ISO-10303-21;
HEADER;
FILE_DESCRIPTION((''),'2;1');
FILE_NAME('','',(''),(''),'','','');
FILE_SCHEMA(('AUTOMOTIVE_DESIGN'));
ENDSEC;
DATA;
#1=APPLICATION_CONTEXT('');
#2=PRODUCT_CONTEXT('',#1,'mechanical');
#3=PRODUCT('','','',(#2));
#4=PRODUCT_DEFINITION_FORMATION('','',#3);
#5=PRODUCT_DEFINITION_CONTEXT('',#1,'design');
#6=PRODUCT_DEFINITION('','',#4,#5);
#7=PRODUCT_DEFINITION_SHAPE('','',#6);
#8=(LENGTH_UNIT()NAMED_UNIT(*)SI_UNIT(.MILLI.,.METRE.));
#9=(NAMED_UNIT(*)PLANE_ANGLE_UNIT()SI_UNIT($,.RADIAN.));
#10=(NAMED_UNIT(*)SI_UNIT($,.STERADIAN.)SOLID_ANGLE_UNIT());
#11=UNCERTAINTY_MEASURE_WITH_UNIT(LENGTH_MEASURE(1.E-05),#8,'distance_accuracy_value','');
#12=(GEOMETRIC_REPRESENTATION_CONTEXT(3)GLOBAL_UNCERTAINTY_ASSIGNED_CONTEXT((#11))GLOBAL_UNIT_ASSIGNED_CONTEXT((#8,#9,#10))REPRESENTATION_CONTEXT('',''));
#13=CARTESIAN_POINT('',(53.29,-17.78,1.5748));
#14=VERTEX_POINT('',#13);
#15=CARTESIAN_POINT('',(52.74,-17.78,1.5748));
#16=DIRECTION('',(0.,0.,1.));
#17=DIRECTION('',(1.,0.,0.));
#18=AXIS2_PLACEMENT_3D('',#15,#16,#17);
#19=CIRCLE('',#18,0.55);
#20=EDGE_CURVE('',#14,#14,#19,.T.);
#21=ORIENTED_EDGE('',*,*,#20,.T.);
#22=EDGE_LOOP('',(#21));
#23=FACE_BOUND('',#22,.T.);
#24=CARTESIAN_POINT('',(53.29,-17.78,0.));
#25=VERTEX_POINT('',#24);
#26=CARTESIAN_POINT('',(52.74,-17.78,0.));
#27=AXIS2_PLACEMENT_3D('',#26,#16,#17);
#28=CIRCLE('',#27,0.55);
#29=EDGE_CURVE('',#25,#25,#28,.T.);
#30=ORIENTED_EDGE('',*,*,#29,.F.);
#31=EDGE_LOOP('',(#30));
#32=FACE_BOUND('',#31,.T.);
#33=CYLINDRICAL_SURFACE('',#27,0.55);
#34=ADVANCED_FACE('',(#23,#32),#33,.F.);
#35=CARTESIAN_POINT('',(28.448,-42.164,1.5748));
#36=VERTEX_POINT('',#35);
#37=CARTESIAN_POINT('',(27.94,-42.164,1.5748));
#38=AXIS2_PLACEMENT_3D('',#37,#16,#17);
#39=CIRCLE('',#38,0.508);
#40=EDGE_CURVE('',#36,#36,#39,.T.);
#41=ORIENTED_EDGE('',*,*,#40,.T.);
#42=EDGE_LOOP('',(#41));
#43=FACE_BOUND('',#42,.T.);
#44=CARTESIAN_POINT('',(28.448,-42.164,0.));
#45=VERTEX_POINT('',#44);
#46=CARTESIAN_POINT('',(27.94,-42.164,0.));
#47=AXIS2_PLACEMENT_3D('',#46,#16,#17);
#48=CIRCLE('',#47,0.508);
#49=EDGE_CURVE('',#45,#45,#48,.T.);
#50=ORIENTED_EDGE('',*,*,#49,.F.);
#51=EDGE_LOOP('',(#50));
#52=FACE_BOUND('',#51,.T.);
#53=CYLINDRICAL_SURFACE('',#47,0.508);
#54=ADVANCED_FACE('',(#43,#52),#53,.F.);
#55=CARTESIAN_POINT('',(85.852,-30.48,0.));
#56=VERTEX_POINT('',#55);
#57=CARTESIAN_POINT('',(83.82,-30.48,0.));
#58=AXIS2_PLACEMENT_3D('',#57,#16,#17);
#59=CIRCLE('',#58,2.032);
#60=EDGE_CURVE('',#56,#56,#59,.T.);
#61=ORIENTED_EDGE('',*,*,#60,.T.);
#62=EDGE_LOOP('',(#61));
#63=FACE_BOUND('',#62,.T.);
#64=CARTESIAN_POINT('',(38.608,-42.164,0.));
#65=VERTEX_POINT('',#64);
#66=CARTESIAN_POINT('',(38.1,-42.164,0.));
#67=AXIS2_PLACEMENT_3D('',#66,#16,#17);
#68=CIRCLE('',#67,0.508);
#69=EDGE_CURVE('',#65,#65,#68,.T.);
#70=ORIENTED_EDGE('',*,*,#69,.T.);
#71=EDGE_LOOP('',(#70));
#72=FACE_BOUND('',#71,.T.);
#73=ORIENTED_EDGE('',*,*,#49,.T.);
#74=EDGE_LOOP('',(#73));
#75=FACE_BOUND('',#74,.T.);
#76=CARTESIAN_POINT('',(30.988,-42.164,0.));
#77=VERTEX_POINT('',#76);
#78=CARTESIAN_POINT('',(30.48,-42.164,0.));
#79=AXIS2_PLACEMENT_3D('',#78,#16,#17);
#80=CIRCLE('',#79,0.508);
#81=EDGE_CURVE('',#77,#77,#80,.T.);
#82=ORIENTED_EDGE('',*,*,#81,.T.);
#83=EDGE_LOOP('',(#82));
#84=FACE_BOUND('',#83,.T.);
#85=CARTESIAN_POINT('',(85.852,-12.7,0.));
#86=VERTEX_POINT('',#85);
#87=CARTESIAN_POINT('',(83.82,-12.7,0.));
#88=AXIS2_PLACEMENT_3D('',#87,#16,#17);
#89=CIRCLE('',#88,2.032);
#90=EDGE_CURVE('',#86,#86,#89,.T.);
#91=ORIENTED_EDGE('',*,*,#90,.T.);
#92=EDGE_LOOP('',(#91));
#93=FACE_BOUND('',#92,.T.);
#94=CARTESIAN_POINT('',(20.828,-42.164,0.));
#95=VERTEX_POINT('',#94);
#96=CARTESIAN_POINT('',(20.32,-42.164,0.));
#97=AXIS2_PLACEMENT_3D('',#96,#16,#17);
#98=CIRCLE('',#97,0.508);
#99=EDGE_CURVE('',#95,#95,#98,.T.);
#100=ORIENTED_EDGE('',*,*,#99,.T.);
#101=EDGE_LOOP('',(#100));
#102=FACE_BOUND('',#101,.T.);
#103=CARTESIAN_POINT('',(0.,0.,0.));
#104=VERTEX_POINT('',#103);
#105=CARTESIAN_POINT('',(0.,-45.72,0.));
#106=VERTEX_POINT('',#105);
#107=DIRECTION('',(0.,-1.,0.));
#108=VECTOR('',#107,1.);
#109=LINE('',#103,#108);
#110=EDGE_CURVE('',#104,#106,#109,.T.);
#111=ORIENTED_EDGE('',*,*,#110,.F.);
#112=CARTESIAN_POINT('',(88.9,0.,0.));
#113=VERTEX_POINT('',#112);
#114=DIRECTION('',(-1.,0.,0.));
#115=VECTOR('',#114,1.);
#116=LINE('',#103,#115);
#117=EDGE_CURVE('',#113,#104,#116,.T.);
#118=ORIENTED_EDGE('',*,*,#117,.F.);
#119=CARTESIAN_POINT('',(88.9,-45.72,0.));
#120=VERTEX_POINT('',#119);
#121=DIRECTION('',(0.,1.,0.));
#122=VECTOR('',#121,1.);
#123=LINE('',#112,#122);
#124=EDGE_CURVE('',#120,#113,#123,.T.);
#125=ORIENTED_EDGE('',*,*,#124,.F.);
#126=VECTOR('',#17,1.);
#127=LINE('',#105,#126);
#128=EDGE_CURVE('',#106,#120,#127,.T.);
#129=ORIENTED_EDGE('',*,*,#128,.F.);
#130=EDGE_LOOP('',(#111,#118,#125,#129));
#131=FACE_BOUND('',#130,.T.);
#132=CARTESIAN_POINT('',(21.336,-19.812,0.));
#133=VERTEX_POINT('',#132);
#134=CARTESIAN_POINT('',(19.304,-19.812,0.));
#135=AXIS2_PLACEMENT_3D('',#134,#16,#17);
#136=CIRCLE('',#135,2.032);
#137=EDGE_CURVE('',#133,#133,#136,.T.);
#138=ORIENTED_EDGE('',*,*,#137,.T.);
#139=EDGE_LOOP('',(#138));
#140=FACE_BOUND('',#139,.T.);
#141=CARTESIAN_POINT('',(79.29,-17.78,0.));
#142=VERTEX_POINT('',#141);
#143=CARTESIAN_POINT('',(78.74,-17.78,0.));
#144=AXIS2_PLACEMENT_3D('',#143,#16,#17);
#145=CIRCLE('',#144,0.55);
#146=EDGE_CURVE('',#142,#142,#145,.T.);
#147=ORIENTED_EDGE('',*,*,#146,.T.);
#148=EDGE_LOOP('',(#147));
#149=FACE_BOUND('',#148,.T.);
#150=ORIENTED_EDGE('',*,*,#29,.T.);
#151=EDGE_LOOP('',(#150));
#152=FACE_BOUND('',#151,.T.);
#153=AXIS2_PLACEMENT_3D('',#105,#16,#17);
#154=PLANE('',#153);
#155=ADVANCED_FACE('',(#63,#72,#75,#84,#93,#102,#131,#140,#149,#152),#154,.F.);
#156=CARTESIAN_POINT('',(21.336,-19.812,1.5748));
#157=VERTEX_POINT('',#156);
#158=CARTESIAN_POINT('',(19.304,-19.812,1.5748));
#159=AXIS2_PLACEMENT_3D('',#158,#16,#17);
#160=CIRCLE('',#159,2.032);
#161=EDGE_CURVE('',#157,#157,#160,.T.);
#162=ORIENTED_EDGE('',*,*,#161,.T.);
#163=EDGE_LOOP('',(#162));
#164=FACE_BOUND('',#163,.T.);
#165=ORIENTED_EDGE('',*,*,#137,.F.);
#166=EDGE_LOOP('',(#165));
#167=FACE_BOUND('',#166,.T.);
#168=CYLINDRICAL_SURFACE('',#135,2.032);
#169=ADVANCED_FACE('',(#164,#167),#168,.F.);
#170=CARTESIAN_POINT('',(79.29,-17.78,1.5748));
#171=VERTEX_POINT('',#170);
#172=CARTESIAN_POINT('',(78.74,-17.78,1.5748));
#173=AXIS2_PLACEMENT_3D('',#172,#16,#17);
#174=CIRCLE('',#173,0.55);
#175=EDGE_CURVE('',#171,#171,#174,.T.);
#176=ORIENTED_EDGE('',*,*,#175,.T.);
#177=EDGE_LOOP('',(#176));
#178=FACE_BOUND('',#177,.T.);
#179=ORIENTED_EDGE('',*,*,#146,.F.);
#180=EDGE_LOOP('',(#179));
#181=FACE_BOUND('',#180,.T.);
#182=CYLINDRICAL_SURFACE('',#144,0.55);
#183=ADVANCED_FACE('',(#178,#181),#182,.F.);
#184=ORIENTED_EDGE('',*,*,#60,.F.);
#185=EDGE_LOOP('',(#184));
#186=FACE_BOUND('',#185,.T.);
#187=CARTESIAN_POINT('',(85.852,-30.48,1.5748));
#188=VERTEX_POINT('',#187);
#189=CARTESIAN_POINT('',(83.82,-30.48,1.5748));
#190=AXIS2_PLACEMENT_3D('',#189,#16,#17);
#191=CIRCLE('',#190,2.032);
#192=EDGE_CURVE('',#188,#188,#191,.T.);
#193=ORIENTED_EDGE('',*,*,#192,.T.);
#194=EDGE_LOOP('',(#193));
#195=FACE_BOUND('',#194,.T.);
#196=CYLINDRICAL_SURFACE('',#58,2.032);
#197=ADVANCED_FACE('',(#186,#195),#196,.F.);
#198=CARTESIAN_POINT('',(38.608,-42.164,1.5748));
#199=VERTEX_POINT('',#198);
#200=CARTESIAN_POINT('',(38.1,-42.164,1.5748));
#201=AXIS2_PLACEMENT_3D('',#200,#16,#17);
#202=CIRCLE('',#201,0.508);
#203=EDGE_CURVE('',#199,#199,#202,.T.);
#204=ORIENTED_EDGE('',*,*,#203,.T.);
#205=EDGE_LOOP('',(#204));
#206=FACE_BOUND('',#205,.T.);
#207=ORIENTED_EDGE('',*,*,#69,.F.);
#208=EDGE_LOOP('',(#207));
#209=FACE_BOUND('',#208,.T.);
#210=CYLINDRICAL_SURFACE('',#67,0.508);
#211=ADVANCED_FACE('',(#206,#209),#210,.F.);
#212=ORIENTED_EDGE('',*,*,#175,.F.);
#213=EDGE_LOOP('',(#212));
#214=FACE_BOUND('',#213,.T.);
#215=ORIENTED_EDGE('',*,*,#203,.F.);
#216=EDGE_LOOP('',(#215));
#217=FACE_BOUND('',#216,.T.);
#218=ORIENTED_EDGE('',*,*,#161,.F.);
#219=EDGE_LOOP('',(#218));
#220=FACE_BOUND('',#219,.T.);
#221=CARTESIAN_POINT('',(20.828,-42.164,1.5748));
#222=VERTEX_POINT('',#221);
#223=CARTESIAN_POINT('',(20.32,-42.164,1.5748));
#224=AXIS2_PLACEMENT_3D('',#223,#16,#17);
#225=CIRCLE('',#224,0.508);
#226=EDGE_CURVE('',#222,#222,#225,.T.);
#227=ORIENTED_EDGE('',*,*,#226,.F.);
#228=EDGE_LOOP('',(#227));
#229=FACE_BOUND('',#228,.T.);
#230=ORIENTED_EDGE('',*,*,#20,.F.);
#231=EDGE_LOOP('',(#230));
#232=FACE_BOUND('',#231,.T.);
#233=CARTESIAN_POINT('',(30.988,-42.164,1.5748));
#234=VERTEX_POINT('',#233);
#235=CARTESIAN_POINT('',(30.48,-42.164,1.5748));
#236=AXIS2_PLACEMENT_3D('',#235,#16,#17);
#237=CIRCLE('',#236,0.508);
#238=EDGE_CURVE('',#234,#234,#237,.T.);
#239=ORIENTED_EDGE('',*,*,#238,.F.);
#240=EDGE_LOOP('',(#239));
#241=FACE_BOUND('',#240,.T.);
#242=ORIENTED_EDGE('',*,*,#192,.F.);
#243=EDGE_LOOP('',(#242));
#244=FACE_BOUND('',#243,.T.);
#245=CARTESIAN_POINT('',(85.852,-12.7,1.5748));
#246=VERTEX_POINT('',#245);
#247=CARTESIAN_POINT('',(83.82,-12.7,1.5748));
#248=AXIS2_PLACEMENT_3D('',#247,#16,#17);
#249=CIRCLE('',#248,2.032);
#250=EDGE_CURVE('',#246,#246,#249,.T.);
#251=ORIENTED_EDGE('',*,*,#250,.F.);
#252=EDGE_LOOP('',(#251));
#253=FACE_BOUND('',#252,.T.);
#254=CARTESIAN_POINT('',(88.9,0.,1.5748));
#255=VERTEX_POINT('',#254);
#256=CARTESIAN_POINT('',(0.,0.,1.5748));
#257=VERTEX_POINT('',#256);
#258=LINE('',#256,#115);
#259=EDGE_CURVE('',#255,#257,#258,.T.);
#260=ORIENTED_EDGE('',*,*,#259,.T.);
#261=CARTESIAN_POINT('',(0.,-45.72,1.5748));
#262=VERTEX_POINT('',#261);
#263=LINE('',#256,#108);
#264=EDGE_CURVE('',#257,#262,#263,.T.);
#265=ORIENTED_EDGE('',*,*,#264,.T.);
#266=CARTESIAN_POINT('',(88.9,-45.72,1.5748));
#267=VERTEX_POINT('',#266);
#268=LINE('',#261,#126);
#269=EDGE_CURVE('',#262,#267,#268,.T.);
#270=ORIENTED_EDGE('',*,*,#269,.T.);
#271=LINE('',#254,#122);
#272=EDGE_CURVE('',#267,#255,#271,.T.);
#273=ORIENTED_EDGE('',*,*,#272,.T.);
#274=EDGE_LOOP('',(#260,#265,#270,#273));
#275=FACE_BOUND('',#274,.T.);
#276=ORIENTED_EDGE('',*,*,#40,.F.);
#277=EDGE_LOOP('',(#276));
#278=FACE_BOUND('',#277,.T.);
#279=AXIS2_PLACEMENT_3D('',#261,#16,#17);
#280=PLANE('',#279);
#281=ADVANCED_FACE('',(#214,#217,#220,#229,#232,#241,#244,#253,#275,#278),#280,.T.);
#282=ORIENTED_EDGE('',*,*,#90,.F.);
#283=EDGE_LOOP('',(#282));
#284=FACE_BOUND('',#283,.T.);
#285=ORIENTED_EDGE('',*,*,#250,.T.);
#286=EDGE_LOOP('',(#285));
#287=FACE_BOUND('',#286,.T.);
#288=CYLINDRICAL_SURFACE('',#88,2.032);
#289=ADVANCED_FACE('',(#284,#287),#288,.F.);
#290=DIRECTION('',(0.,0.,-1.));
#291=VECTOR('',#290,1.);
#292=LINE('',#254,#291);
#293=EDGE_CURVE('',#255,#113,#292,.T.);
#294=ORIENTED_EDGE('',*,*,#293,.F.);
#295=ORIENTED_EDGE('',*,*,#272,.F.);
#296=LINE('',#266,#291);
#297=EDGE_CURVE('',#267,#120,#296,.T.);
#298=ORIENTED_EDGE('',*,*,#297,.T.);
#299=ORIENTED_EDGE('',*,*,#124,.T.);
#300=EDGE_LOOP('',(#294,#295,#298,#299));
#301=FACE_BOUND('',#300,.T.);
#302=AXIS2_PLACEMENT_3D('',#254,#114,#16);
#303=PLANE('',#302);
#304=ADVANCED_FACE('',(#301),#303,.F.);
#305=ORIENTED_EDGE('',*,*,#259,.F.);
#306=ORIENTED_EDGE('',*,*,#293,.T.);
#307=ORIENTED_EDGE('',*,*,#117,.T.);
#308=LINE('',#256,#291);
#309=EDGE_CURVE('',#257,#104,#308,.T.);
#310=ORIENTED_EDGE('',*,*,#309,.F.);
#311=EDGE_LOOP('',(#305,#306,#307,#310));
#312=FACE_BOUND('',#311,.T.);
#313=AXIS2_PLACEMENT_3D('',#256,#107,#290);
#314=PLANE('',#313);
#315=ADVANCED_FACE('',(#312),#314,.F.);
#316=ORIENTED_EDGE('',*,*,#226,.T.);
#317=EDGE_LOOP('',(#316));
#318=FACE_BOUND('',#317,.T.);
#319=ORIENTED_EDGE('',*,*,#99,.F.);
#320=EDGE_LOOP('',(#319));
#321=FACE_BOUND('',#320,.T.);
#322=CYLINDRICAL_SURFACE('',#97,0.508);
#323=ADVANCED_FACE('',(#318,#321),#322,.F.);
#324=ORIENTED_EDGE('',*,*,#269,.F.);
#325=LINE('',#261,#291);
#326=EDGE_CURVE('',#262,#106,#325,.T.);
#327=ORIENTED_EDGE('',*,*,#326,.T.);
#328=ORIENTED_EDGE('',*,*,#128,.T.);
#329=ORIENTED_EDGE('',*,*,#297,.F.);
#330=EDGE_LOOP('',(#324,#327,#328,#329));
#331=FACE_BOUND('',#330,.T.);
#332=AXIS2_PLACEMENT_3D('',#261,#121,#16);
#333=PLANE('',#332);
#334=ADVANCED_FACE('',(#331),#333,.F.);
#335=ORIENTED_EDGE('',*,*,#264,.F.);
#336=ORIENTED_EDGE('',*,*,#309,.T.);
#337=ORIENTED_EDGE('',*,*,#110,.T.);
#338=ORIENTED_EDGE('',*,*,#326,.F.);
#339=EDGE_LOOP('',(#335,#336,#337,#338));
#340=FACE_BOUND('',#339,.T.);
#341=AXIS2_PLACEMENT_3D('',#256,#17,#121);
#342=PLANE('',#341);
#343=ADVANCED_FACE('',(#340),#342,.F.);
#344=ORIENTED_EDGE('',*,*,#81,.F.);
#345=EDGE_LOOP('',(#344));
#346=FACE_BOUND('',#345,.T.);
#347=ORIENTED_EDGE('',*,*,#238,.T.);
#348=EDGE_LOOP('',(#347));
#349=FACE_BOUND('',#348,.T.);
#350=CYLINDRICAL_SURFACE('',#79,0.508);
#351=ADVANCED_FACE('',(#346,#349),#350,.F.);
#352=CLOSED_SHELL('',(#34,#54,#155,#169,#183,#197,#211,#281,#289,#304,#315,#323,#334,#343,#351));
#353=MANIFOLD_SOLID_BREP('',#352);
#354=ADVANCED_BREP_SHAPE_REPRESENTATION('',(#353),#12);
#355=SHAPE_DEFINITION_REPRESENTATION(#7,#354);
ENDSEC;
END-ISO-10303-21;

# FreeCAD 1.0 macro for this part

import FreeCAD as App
import Part
import Sketcher
Q = App.Units.Quantity

doc = App.newDocument("Part")
body = doc.addObject("PartDesign::Body", "Body")

sketch1 = doc.addObject("Sketcher::SketchObject", "Sketch")
body.addObject(sketch1)
sketch1.AttachmentSupport = (doc.XY_Plane, [""])
sketch1.MapMode = "FlatFace"
sketch1.addGeometry([
    Part.LineSegment(App.Vector(0, 0, 0), App.Vector(0, -46, 0)),
    Part.LineSegment(App.Vector(0, -46, 0), App.Vector(89, -46, 0)),
    Part.LineSegment(App.Vector(89, -46, 0), App.Vector(89, 0, 0)),
    Part.LineSegment(App.Vector(89, 0, 0), App.Vector(0, 0, 0)),
], False)
sketch1.addConstraint([
    Sketcher.Constraint("Coincident", 0, 2, 1, 1),
    Sketcher.Constraint("Coincident", 1, 2, 2, 1),
    Sketcher.Constraint("Coincident", 2, 2, 3, 1),
    Sketcher.Constraint("Coincident", 3, 2, 0, 1),
    Sketcher.Constraint("Vertical", 0),
    Sketcher.Constraint("Horizontal", 1),
    Sketcher.Constraint("Vertical", 2),
    Sketcher.Constraint("Horizontal", 3),
    Sketcher.Constraint("Coincident", 3, 2, -1, 1),
    Sketcher.Constraint("DistanceX", 1, 1, 1, 2, Q("3.5 in")),
    Sketcher.Constraint("DistanceY", 0, 2, 0, 1, Q("1.8 in")),
])
pad1 = doc.addObject("PartDesign::Pad", "Pad")
body.addObject(pad1)
pad1.Profile = sketch1
pad1.Length = Q("0.062 in")

sketch2 = doc.addObject("Sketcher::SketchObject", "Sketch001")
body.addObject(sketch2)
sketch2.AttachmentSupport = (doc.XY_Plane, [""])
sketch2.MapMode = "FlatFace"
sketch2.AttachmentOffset = App.Placement(App.Vector(0, 0, 0.062 * 25.4), App.Rotation())
sketch2.addGeometry([
    Part.Circle(App.Vector(52.7, -17.8, 0), App.Vector(0, 0, 1), 0.6),
    Part.Circle(App.Vector(78.7, -17.8, 0), App.Vector(0, 0, 1), 0.6),
], False)
sketch2.addConstraint([
    Sketcher.Constraint("Equal", 0, 1),
    Sketcher.Constraint("Horizontal", 0, 3, 1, 3),
    Sketcher.Constraint("DistanceY", 0, 3, -1, 1, Q("0.7 in")),
    Sketcher.Constraint("DistanceX", -1, 1, 1, 3, Q("3.1 in")),
    Sketcher.Constraint("Diameter", 0, 1.1),
    Sketcher.Constraint("DistanceX", -1, 1, 0, 3, 52.74),
])
pocket1 = doc.addObject("PartDesign::Pocket", "Pocket")
body.addObject(pocket1)
pocket1.Profile = sketch2
pocket1.Length = Q("0.062 in")

sketch3 = doc.addObject("Sketcher::SketchObject", "Sketch002")
body.addObject(sketch3)
sketch3.AttachmentSupport = (doc.XY_Plane, [""])
sketch3.MapMode = "FlatFace"
sketch3.AttachmentOffset = App.Placement(App.Vector(0, 0, 0.062 * 25.4), App.Rotation())
sketch3.addGeometry([
    Part.Circle(App.Vector(20.3, -42.2, 0), App.Vector(0, 0, 1), 0.5),
    Part.Circle(App.Vector(27.9, -42.2, 0), App.Vector(0, 0, 1), 0.5),
    Part.Circle(App.Vector(30.5, -42.2, 0), App.Vector(0, 0, 1), 0.5),
    Part.Circle(App.Vector(38.1, -42.2, 0), App.Vector(0, 0, 1), 0.5),
], False)
sketch3.addConstraint([
    Sketcher.Constraint("Equal", 0, 1),
    Sketcher.Constraint("Equal", 1, 2),
    Sketcher.Constraint("Equal", 2, 3),
    Sketcher.Constraint("Horizontal", 0, 3, 1, 3),
    Sketcher.Constraint("Horizontal", 1, 3, 2, 3),
    Sketcher.Constraint("Horizontal", 2, 3, 3, 3),
    Sketcher.Constraint("Diameter", 0, Q("0.04 in")),
    Sketcher.Constraint("DistanceX", -1, 1, 0, 3, Q("0.8 in")),
    Sketcher.Constraint("DistanceX", -1, 1, 1, 3, Q("1.1 in")),
    Sketcher.Constraint("DistanceX", -1, 1, 2, 3, Q("1.2 in")),
    Sketcher.Constraint("DistanceX", -1, 1, 3, 3, Q("1.5 in")),
    Sketcher.Constraint("DistanceY", 0, 3, -1, 1, Q("1.66 in")),
])
pocket2 = doc.addObject("PartDesign::Pocket", "Pocket001")
body.addObject(pocket2)
pocket2.Profile = sketch3
pocket2.Length = Q("0.062 in")

sketch4 = doc.addObject("Sketcher::SketchObject", "Sketch003")
body.addObject(sketch4)
sketch4.AttachmentSupport = (doc.XY_Plane, [""])
sketch4.MapMode = "FlatFace"
sketch4.AttachmentOffset = App.Placement(App.Vector(0, 0, 0.062 * 25.4), App.Rotation())
sketch4.addGeometry([
    Part.Circle(App.Vector(83.8, -30.5, 0), App.Vector(0, 0, 1), 2),
    Part.Circle(App.Vector(83.8, -12.7, 0), App.Vector(0, 0, 1), 2),
    Part.Circle(App.Vector(19.3, -19.8, 0), App.Vector(0, 0, 1), 2),
], False)
sketch4.addConstraint([
    Sketcher.Constraint("Equal", 0, 1),
    Sketcher.Constraint("Equal", 1, 2),
    Sketcher.Constraint("Vertical", 0, 3, 1, 3),
    Sketcher.Constraint("Diameter", 0, Q("0.16 in")),
    Sketcher.Constraint("DistanceX", -1, 1, 0, 3, Q("3.3 in")),
    Sketcher.Constraint("DistanceY", 0, 3, -1, 1, Q("1.2 in")),
    Sketcher.Constraint("DistanceY", 1, 3, -1, 1, Q("0.5 in")),
    Sketcher.Constraint("DistanceX", -1, 1, 2, 3, Q("0.76 in")),
    Sketcher.Constraint("DistanceY", 2, 3, -1, 1, Q("0.78 in")),
])
pocket3 = doc.addObject("PartDesign::Pocket", "Pocket002")
body.addObject(pocket3)
pocket3.Profile = sketch4
pocket3.Length = Q("0.062 in")

doc.recompute()
